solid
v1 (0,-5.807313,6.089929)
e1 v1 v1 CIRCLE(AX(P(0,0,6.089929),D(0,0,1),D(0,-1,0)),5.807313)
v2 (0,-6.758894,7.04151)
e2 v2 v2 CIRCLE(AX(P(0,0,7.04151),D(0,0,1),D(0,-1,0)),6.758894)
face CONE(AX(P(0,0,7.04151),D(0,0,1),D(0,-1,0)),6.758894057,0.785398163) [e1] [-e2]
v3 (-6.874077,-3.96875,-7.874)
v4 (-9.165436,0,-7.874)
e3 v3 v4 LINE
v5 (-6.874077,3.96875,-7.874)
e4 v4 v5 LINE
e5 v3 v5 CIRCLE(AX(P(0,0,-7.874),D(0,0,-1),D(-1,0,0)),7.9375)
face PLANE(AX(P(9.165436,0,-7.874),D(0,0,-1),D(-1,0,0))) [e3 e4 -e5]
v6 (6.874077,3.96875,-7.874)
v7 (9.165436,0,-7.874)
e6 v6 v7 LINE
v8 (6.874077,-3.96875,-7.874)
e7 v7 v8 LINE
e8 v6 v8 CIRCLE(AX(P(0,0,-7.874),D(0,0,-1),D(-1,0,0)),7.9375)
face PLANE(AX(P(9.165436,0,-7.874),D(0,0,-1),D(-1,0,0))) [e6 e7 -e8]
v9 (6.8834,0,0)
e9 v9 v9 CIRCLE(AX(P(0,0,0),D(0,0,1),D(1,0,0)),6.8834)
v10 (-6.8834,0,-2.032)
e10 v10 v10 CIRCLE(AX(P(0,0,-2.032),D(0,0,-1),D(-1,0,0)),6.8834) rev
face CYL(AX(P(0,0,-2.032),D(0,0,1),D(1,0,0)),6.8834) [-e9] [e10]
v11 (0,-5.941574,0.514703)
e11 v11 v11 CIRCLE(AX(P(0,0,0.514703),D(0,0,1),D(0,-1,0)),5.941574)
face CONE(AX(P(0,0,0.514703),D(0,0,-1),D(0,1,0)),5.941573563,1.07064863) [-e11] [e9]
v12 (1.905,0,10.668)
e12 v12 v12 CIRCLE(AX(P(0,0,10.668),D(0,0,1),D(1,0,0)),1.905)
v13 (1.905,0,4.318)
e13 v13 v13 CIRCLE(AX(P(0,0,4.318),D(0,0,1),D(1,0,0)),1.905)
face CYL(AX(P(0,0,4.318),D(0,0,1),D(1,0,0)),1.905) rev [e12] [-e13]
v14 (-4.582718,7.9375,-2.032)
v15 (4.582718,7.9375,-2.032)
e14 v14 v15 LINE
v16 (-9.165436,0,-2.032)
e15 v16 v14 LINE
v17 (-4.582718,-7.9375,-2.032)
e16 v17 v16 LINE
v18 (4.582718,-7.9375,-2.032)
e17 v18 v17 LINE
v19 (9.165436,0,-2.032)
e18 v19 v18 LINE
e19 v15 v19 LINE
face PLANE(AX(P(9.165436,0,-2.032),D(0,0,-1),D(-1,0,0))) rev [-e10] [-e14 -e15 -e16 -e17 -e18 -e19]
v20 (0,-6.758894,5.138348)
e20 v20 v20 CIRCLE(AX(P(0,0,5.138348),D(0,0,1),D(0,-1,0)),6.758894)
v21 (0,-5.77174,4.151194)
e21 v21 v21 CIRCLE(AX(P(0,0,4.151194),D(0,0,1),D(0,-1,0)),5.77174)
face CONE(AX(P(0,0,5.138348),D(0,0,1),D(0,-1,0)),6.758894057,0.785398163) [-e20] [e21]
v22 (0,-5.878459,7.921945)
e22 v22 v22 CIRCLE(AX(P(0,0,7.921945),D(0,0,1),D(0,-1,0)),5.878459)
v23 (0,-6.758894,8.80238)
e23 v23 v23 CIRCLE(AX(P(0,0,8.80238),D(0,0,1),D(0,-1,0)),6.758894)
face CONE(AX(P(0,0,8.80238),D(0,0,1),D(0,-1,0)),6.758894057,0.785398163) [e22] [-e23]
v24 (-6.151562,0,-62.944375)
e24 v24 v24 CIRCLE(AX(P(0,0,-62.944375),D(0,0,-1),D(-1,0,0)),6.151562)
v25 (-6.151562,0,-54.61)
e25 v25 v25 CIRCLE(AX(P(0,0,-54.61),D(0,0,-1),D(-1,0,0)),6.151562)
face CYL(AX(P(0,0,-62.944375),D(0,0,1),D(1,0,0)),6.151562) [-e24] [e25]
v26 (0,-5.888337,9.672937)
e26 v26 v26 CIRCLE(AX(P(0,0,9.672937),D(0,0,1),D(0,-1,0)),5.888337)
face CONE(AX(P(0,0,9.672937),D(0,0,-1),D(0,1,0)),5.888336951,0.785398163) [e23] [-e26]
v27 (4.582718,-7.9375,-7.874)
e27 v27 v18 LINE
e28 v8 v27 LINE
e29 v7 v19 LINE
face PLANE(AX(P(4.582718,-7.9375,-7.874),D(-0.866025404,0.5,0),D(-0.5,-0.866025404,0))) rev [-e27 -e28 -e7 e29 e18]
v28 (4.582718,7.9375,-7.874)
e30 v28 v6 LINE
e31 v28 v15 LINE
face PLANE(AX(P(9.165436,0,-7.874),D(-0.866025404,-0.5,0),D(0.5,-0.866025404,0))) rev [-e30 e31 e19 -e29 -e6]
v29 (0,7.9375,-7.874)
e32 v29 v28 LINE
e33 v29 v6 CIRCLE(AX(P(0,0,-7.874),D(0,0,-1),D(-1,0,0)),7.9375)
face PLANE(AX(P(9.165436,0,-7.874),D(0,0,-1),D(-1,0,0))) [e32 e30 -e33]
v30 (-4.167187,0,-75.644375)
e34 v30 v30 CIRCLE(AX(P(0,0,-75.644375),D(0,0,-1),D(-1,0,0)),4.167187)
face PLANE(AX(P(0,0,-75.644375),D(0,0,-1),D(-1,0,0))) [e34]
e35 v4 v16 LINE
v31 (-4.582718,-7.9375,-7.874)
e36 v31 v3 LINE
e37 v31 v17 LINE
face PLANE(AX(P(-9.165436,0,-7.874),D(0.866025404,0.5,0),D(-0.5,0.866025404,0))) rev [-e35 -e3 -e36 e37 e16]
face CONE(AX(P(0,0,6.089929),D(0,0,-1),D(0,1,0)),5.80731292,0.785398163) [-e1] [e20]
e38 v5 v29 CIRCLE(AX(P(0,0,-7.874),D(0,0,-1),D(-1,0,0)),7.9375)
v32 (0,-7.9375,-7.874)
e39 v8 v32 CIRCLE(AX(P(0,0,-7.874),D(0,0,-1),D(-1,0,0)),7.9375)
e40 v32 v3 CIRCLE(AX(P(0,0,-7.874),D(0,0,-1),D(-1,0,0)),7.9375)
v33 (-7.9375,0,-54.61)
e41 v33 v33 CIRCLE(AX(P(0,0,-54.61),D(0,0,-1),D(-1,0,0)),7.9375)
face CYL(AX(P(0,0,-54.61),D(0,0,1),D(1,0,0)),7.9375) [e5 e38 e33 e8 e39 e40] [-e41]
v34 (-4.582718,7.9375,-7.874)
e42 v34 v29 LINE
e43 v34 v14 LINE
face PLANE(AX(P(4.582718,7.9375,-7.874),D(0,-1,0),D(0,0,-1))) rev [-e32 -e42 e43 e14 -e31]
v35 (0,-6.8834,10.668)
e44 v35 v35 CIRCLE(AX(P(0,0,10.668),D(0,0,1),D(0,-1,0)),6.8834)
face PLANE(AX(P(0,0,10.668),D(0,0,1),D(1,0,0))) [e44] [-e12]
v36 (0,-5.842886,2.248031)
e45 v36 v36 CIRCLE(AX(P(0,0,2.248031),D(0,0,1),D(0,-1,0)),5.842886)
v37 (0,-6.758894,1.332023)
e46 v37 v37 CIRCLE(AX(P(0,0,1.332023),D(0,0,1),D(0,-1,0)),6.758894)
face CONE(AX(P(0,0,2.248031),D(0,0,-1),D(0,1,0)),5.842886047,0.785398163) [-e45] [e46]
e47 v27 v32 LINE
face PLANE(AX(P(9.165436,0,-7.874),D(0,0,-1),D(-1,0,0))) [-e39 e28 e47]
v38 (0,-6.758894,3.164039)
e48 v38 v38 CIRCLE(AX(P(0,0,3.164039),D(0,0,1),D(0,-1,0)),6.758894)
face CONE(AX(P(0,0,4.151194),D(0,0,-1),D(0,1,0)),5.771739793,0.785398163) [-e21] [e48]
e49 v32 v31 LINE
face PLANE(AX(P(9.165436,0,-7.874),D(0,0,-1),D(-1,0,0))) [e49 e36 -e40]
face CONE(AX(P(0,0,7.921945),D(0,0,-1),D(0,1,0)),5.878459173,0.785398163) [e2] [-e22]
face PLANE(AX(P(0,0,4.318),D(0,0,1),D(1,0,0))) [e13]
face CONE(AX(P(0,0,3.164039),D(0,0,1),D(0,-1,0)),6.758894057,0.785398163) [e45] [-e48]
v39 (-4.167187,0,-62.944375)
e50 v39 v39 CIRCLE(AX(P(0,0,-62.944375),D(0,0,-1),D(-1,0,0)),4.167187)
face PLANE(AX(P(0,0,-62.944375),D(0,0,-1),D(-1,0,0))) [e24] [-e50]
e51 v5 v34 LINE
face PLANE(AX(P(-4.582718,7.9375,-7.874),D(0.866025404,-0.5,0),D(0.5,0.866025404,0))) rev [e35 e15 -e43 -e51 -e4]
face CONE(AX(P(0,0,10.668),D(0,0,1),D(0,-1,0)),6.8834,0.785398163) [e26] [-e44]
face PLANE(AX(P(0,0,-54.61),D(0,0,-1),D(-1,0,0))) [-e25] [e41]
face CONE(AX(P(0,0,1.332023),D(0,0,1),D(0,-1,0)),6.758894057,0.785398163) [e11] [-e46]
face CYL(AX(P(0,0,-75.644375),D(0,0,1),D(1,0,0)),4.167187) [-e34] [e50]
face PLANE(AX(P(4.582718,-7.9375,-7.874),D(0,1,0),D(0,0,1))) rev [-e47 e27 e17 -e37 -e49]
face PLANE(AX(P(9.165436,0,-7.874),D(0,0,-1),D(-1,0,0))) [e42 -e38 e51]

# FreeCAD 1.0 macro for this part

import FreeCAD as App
import Part
import Sketcher
Q = App.Units.Quantity

doc = App.newDocument("Part")
body = doc.addObject("PartDesign::Body", "Body")

sketch1 = doc.addObject("Sketcher::SketchObject", "Sketch")
body.addObject(sketch1)
sketch1.AttachmentSupport = (doc.XY_Plane, [""])
sketch1.MapMode = "FlatFace"
sketch1.addGeometry(Part.Circle(App.Vector(0, 0, 0), App.Vector(0, 0, 1), 7), False)
sketch1.addConstraint(Sketcher.Constraint("Coincident", 0, 3, -1, 1))
sketch1.addConstraint(Sketcher.Constraint("Diameter", 0, Q("0.542 in")))
pad1 = doc.addObject("PartDesign::Pad", "Pad")
body.addObject(pad1)
pad1.Profile = sketch1
pad1.Length = Q("0.42 in")

sketch2 = doc.addObject("Sketcher::SketchObject", "Sketch001")
body.addObject(sketch2)
sketch2.AttachmentSupport = (doc.YZ_Plane, [""])
sketch2.MapMode = "FlatFace"
sketch2.addGeometry(Part.LineSegment(App.Vector(6.9, 10.7, 0), App.Vector(5.9, 9.7, 0)), False)
sketch2.addGeometry(Part.LineSegment(App.Vector(5.9, 9.7, 0), App.Vector(6.8, 8.8, 0)), False)
sketch2.addGeometry(Part.LineSegment(App.Vector(6.8, 8.8, 0), App.Vector(5.9, 7.9, 0)), False)
sketch2.addGeometry(Part.LineSegment(App.Vector(5.9, 7.9, 0), App.Vector(6.8, 7, 0)), False)
sketch2.addGeometry(Part.LineSegment(App.Vector(6.8, 7, 0), App.Vector(5.8, 6.1, 0)), False)
sketch2.addGeometry(Part.LineSegment(App.Vector(5.8, 6.1, 0), App.Vector(6.8, 5.1, 0)), False)
sketch2.addGeometry(Part.LineSegment(App.Vector(6.8, 5.1, 0), App.Vector(5.8, 4.2, 0)), False)
sketch2.addGeometry(Part.LineSegment(App.Vector(5.8, 4.2, 0), App.Vector(6.8, 3.2, 0)), False)
sketch2.addGeometry(Part.LineSegment(App.Vector(6.8, 3.2, 0), App.Vector(5.8, 2.2, 0)), False)
sketch2.addGeometry(Part.LineSegment(App.Vector(5.8, 2.2, 0), App.Vector(6.8, 1.3, 0)), False)
sketch2.addGeometry(Part.LineSegment(App.Vector(6.8, 1.3, 0), App.Vector(5.9, 0.5, 0)), False)
sketch2.addGeometry(Part.LineSegment(App.Vector(5.9, 0.5, 0), App.Vector(6.9, 0, 0)), False)
sketch2.addGeometry(Part.LineSegment(App.Vector(6.9, 0, 0), App.Vector(6.9, 10.7, 0)), False)
sketch2.addConstraint(Sketcher.Constraint("Coincident", 0, 2, 1, 1))
sketch2.addConstraint(Sketcher.Constraint("Coincident", 1, 2, 2, 1))
sketch2.addConstraint(Sketcher.Constraint("Coincident", 2, 2, 3, 1))
sketch2.addConstraint(Sketcher.Constraint("Coincident", 3, 2, 4, 1))
sketch2.addConstraint(Sketcher.Constraint("Coincident", 4, 2, 5, 1))
sketch2.addConstraint(Sketcher.Constraint("Coincident", 5, 2, 6, 1))
sketch2.addConstraint(Sketcher.Constraint("Coincident", 6, 2, 7, 1))
sketch2.addConstraint(Sketcher.Constraint("Coincident", 7, 2, 8, 1))
sketch2.addConstraint(Sketcher.Constraint("Coincident", 8, 2, 9, 1))
sketch2.addConstraint(Sketcher.Constraint("Coincident", 9, 2, 10, 1))
sketch2.addConstraint(Sketcher.Constraint("Coincident", 10, 2, 11, 1))
sketch2.addConstraint(Sketcher.Constraint("Coincident", 11, 2, 12, 1))
sketch2.addConstraint(Sketcher.Constraint("Coincident", 12, 2, 0, 1))
sketch2.addConstraint(Sketcher.Constraint("Vertical", 12))
sketch2.addConstraint(Sketcher.Constraint("PointOnObject", 11, 2, -1))
sketch2.addConstraint(Sketcher.Constraint("Perpendicular", 0, 1))
sketch2.addConstraint(Sketcher.Constraint("Perpendicular", 1, 2))
sketch2.addConstraint(Sketcher.Constraint("Perpendicular", 2, 3))
sketch2.addConstraint(Sketcher.Constraint("Perpendicular", 3, 4))
sketch2.addConstraint(Sketcher.Constraint("Perpendicular", 4, 5))
sketch2.addConstraint(Sketcher.Constraint("Perpendicular", 5, 6))
sketch2.addConstraint(Sketcher.Constraint("Perpendicular", 6, 7))
sketch2.addConstraint(Sketcher.Constraint("Perpendicular", 7, 8))
sketch2.addConstraint(Sketcher.Constraint("Perpendicular", 8, 9))
sketch2.addConstraint(Sketcher.Constraint("Perpendicular", 9, 10))
sketch2.addConstraint(Sketcher.Constraint("Vertical", 1, 2, 3, 2))
sketch2.addConstraint(Sketcher.Constraint("Vertical", 3, 2, 5, 2))
sketch2.addConstraint(Sketcher.Constraint("Vertical", 5, 2, 7, 2))
sketch2.addConstraint(Sketcher.Constraint("Vertical", 7, 2, 9, 2))
sketch2.addConstraint(Sketcher.Constraint("Equal", 2, 3))
sketch2.addConstraint(Sketcher.Constraint("DistanceY", 12, 1, 12, 2, Q("0.42 in")))
sketch2.addConstraint(Sketcher.Constraint("DistanceX", -1, 1, 11, 2, Q("0.271 in")))
sketch2.addConstraint(Sketcher.Constraint("Distance", 0, 1.407232))
sketch2.addConstraint(Sketcher.Constraint("Distance", 4, 1.345739))
sketch2.addConstraint(Sketcher.Constraint("Distance", 8, 1.295431))
sketch2.addConstraint(Sketcher.Constraint("DistanceY", -1, 1, 1, 2, 8.80238))
sketch2.addConstraint(Sketcher.Constraint("DistanceX", -1, 1, 2, 2, 5.878459))
sketch2.addConstraint(Sketcher.Constraint("DistanceX", -1, 1, 6, 2, 5.77174))
sketch2.addConstraint(Sketcher.Constraint("DistanceX", 10, 2, 9, 2, 0.81732))
groove = doc.addObject("PartDesign::Groove", "Groove")
body.addObject(groove)
groove.Profile = sketch2
groove.ReferenceAxis = (sketch2, ["V_Axis"])
groove.Angle = 360

sketch3 = doc.addObject("Sketcher::SketchObject", "Sketch002")
body.addObject(sketch3)
sketch3.AttachmentSupport = (doc.XY_Plane, [""])
sketch3.MapMode = "FlatFace"
sketch3.addGeometry(Part.Circle(App.Vector(0, 0, 0), App.Vector(0, 0, 1), 7), False)
sketch3.addConstraint(Sketcher.Constraint("Coincident", 0, 3, -1, 1))
sketch3.addConstraint(Sketcher.Constraint("Diameter", 0, Q("0.542 in")))
pad2 = doc.addObject("PartDesign::Pad", "Pad001")
body.addObject(pad2)
pad2.Profile = sketch3
pad2.Length = Q("0.08 in")
pad2.Reversed = True

sketch4 = doc.addObject("Sketcher::SketchObject", "Sketch003")
body.addObject(sketch4)
sketch4.AttachmentSupport = (doc.XY_Plane, [""])
sketch4.MapMode = "FlatFace"
sketch4.AttachmentOffset = App.Placement(App.Vector(0, 0, 0.42 * 25.4), App.Rotation())
sketch4.addGeometry(Part.Circle(App.Vector(0, 0, 0), App.Vector(0, 0, 1), 1.9), False)
sketch4.addConstraint(Sketcher.Constraint("Coincident", 0, 3, -1, 1))
sketch4.addConstraint(Sketcher.Constraint("Diameter", 0, Q("0.15 in")))
pocket1 = doc.addObject("PartDesign::Pocket", "Pocket")
body.addObject(pocket1)
pocket1.Profile = sketch4
pocket1.Length = Q("0.25 in")

sketch5 = doc.addObject("Sketcher::SketchObject", "Sketch004")
body.addObject(sketch5)
sketch5.AttachmentSupport = (doc.XY_Plane, [""])
sketch5.MapMode = "FlatFace"
sketch5.AttachmentOffset = App.Placement(App.Vector(0, 0, -0.08 * 25.4), App.Rotation())
sketch5.addGeometry(Part.LineSegment(App.Vector(-5, 8, 0), App.Vector(5, 8, 0)), False)
sketch5.addGeometry(Part.LineSegment(App.Vector(5, 8, 0), App.Vector(9, 0, 0)), False)
sketch5.addGeometry(Part.LineSegment(App.Vector(9, 0, 0), App.Vector(5, -8, 0)), False)
sketch5.addGeometry(Part.LineSegment(App.Vector(5, -8, 0), App.Vector(-5, -8, 0)), False)
sketch5.addGeometry(Part.LineSegment(App.Vector(-5, -8, 0), App.Vector(-9, 0, 0)), False)
sketch5.addGeometry(Part.LineSegment(App.Vector(-9, 0, 0), App.Vector(-5, 8, 0)), False)
sketch5.addConstraint(Sketcher.Constraint("Coincident", 0, 2, 1, 1))
sketch5.addConstraint(Sketcher.Constraint("Coincident", 1, 2, 2, 1))
sketch5.addConstraint(Sketcher.Constraint("Coincident", 2, 2, 3, 1))
sketch5.addConstraint(Sketcher.Constraint("Coincident", 3, 2, 4, 1))
sketch5.addConstraint(Sketcher.Constraint("Coincident", 4, 2, 5, 1))
sketch5.addConstraint(Sketcher.Constraint("Coincident", 5, 2, 0, 1))
sketch5.addConstraint(Sketcher.Constraint("Horizontal", 0))
sketch5.addConstraint(Sketcher.Constraint("Horizontal", 3))
sketch5.addConstraint(Sketcher.Constraint("Symmetric", 0, 2, 3, 2, -1, 1))
sketch5.addConstraint(Sketcher.Constraint("Symmetric", 1, 2, 4, 2, -1, 1))
sketch5.addConstraint(Sketcher.Constraint("PointOnObject", 1, 2, -1))
sketch5.addConstraint(Sketcher.Constraint("Parallel", 2, 5))
sketch5.addConstraint(Sketcher.Constraint("Vertical", 0, 2, 2, 2))
sketch5.addConstraint(Sketcher.Constraint("Angle", 1, Q("-60 deg")))
sketch5.addConstraint(Sketcher.Constraint("DistanceY", -1, 1, 0, 2, Q("0.3125 in")))
sketch5.addConstraint(Sketcher.Constraint("DistanceX", 0, 1, 0, 2, 9.165436))
pad3 = doc.addObject("PartDesign::Pad", "Pad002")
body.addObject(pad3)
pad3.Profile = sketch5
pad3.Length = Q("0.23 in")
pad3.Reversed = True

sketch6 = doc.addObject("Sketcher::SketchObject", "Sketch005")
body.addObject(sketch6)
sketch6.AttachmentSupport = (doc.XY_Plane, [""])
sketch6.MapMode = "FlatFace"
sketch6.AttachmentOffset = App.Placement(App.Vector(0, 0, -0.31 * 25.4), App.Rotation())
sketch6.addGeometry(Part.Circle(App.Vector(0, 0, 0), App.Vector(0, 0, 1), 8), False)
sketch6.addConstraint(Sketcher.Constraint("Coincident", 0, 3, -1, 1))
sketch6.addConstraint(Sketcher.Constraint("Diameter", 0, Q("0.625 in")))
pad4 = doc.addObject("PartDesign::Pad", "Pad003")
body.addObject(pad4)
pad4.Profile = sketch6
pad4.Length = Q("1.84 in")
pad4.Reversed = True

sketch7 = doc.addObject("Sketcher::SketchObject", "Sketch006")
body.addObject(sketch7)
sketch7.AttachmentSupport = (doc.XY_Plane, [""])
sketch7.MapMode = "FlatFace"
sketch7.AttachmentOffset = App.Placement(App.Vector(0, 0, -2.15 * 25.4), App.Rotation())
sketch7.addGeometry(Part.Circle(App.Vector(0, 0, 0), App.Vector(0, 0, 1), 6), False)
sketch7.addConstraint(Sketcher.Constraint("Coincident", 0, 3, -1, 1))
sketch7.addConstraint(Sketcher.Constraint("Diameter", 0, Q("0.484375 in")))
pad5 = doc.addObject("PartDesign::Pad", "Pad004")
body.addObject(pad5)
pad5.Profile = sketch7
pad5.Length = Q("0.328125 in")
pad5.Reversed = True

sketch8 = doc.addObject("Sketcher::SketchObject", "Sketch007")
body.addObject(sketch8)
sketch8.AttachmentSupport = (doc.XY_Plane, [""])
sketch8.MapMode = "FlatFace"
sketch8.AttachmentOffset = App.Placement(App.Vector(0, 0, -62.944375), App.Rotation())
sketch8.addGeometry(Part.Circle(App.Vector(0, 0, 0), App.Vector(0, 0, 1), 4.2), False)
sketch8.addConstraint(Sketcher.Constraint("Coincident", 0, 3, -1, 1))
sketch8.addConstraint(Sketcher.Constraint("Diameter", 0, Q("0.328125 in")))
pad6 = doc.addObject("PartDesign::Pad", "Pad005")
body.addObject(pad6)
pad6.Profile = sketch8
pad6.Length = Q("0.5 in")
pad6.Reversed = True

doc.recompute()
